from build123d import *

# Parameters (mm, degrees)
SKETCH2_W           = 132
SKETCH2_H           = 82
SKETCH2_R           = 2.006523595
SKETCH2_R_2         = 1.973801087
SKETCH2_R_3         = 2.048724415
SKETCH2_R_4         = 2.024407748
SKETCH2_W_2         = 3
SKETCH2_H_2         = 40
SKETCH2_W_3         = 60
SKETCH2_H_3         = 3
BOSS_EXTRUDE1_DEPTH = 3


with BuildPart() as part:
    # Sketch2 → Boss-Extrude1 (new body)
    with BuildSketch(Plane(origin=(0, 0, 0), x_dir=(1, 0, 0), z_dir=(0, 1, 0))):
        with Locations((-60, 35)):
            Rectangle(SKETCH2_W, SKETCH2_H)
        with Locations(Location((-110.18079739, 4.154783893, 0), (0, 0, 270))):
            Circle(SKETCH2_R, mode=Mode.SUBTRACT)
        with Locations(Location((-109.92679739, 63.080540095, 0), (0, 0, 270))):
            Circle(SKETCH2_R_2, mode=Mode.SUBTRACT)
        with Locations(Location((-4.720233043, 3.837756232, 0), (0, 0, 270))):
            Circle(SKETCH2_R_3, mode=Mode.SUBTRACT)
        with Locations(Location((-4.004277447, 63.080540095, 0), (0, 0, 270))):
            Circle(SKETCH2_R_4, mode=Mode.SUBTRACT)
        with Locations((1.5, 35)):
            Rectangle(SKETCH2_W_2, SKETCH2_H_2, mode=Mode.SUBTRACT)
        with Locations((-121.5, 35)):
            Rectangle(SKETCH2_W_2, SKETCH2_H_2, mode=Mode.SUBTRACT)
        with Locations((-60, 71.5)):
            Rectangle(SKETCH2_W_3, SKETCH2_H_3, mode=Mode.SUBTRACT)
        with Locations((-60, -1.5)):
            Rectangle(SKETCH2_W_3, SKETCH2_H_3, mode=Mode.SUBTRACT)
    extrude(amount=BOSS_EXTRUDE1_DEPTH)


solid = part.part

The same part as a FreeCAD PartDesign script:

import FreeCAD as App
import Part
import Sketcher

V = App.Vector


def add_polygon(sketch, points):
    """Adds a closed chain of lines whose ends are joined by coincident constraints."""
    first, n = sketch.GeometryCount, len(points)
    for a, b in zip(points, points[1:] + points[:1]):
        sketch.addGeometry(Part.LineSegment(App.Vector(*a, 0), App.Vector(*b, 0)), False)
    for i in range(n):
        sketch.addConstraint(Sketcher.Constraint("Coincident", first + i, 2, first + (i + 1) % n, 1))

doc = App.newDocument("Part")
params = doc.addObject("Spreadsheet::Sheet", "Params")
for row, (alias, value) in enumerate([
    ("sketch1_width", "132 mm"),
    ("sketch1_width2", "60 mm"),
    ("sketch1_width3", "3 mm"),
    ("sketch1_height", "82 mm"),
    ("sketch1_height2", "40 mm"),
    ("pad1_length", "3 mm"),
], start=1):
    params.set(f"A{row}", alias)
    params.set(f"B{row}", "=" + value)
    params.setAlias(f"B{row}", alias)

body = doc.addObject("PartDesign::Body", "Body")

# Sketch on XZ plane
sketch1 = doc.addObject("Sketcher::SketchObject", "Sketch")
body.addObject(sketch1)
sketch1.AttachmentSupport = (doc.XZ_Plane, [""])
sketch1.MapMode = "FlatFace"
add_polygon(sketch1, [(-126, -76), (-126, 6), (6, 6), (6, -76)])  # lines 0-3
sketch1.addGeometry(Part.Circle(V(-110.2, -4.2, 0), V(0, 0, 1), 2), False)  # 4
add_polygon(sketch1, [(-30, 3), (-90, 3), (-90, 0), (-30, 0)])  # lines 5-8
sketch1.addGeometry(Part.Circle(V(-4.7, -3.8, 0), V(0, 0, 1), 2), False)  # 9
add_polygon(sketch1, [(-120, -15), (-123, -15), (-123, -55), (-120, -55)])  # lines 10-13
sketch1.addGeometry(Part.Circle(V(-109.9, -63.1, 0), V(0, 0, 1), 2), False)  # 14
add_polygon(sketch1, [(3, -15), (0, -15), (0, -55), (3, -55)])  # lines 15-18
add_polygon(sketch1, [(-30, -70), (-90, -70), (-90, -73), (-30, -73)])  # lines 19-22
sketch1.addGeometry(Part.Circle(V(-4, -63.1, 0), V(0, 0, 1), 2), False)  # 23
sketch1.addConstraint([
    Sketcher.Constraint("Vertical", 0),
    Sketcher.Constraint("Horizontal", 1),
    Sketcher.Constraint("Vertical", 2),
    Sketcher.Constraint("Horizontal", 3),
    Sketcher.Constraint("Horizontal", 5),
    Sketcher.Constraint("Vertical", 6),
    Sketcher.Constraint("Horizontal", 7),
    Sketcher.Constraint("Vertical", 8),
    Sketcher.Constraint("Horizontal", 10),
    Sketcher.Constraint("Vertical", 11),
    Sketcher.Constraint("Horizontal", 12),
    Sketcher.Constraint("Vertical", 13),
    Sketcher.Constraint("Horizontal", 15),
    Sketcher.Constraint("Vertical", 16),
    Sketcher.Constraint("Horizontal", 17),
    Sketcher.Constraint("Vertical", 18),
    Sketcher.Constraint("Horizontal", 19),
    Sketcher.Constraint("Vertical", 20),
    Sketcher.Constraint("Horizontal", 21),
    Sketcher.Constraint("Vertical", 22),
    Sketcher.Constraint("PointOnObject", 6, 2, -1),
    Sketcher.Constraint("PointOnObject", 15, 2, -2),
    Sketcher.Constraint("Horizontal", 14, 3, 23, 3),
    Sketcher.Constraint("Horizontal", 13, 2, 15, 2),
    Sketcher.Constraint("Horizontal", 12, 2, 16, 2),
    Sketcher.Constraint("Vertical", 6, 2, 19, 2),
    Sketcher.Constraint("Vertical", 8, 2, 21, 2),
    Sketcher.Constraint("Equal", 12, 15),
    Sketcher.Constraint("Equal", 17, 6),
    Sketcher.Constraint("Equal", 8, 20),
    Sketcher.Constraint("DistanceX", 1, 1, 1, 2, 132.0),
    Sketcher.Constraint("DistanceX", 5, 2, 5, 1, 60.0),
    Sketcher.Constraint("DistanceX", 10, 2, 10, 1, 3.0),
    Sketcher.Constraint("DistanceY", 0, 1, 0, 2, 82.0),
    Sketcher.Constraint("DistanceY", 11, 2, 11, 1, 40.0),
    Sketcher.Constraint("DistanceX", 0, 2, -1, 1, 126.0),
    Sketcher.Constraint("DistanceY", -1, 1, 0, 2, 6.0),
    Sketcher.Constraint("DistanceX", 5, 2, -1, 1, 90.0),
    Sketcher.Constraint("DistanceX", 10, 2, -1, 1, 123.0),
    Sketcher.Constraint("DistanceY", 10, 2, -1, 1, 15.0),
    Sketcher.Constraint("DistanceY", 19, 2, -1, 1, 70.0),
    Sketcher.Constraint("Diameter", 9, 4.097449),
    Sketcher.Constraint("Diameter", 4, 4.013047),
    Sketcher.Constraint("Diameter", 14, 3.947602),
    Sketcher.Constraint("Diameter", 23, 4.048815),
    Sketcher.Constraint("DistanceX", 4, 3, 14, 3, 0.254),
    Sketcher.Constraint("DistanceY", 14, 3, -1, 1, 63.08054),
    Sketcher.Constraint("DistanceX", 14, 3, 23, 3, 105.92252),
    Sketcher.Constraint("DistanceX", 4, 3, -1, 1, 110.180797),
    Sketcher.Constraint("DistanceY", 4, 3, -1, 1, 4.154784),
    Sketcher.Constraint("DistanceX", 9, 3, -1, 1, 4.720233),
    Sketcher.Constraint("DistanceY", 9, 3, -1, 1, 3.837756),
])
sketch1.setExpression("Constraints[50]", "Params.sketch1_width")
sketch1.setExpression("Constraints[51]", "Params.sketch1_width2")
sketch1.setExpression("Constraints[52]", "Params.sketch1_width3")
sketch1.setExpression("Constraints[53]", "Params.sketch1_height")
sketch1.setExpression("Constraints[54]", "Params.sketch1_height2")
pad1 = doc.addObject("PartDesign::Pad", "Pad")
body.addObject(pad1)
pad1.Profile = sketch1
pad1.setExpression("Length", "Params.pad1_length")
pad1.Reversed = True

doc.recompute()
